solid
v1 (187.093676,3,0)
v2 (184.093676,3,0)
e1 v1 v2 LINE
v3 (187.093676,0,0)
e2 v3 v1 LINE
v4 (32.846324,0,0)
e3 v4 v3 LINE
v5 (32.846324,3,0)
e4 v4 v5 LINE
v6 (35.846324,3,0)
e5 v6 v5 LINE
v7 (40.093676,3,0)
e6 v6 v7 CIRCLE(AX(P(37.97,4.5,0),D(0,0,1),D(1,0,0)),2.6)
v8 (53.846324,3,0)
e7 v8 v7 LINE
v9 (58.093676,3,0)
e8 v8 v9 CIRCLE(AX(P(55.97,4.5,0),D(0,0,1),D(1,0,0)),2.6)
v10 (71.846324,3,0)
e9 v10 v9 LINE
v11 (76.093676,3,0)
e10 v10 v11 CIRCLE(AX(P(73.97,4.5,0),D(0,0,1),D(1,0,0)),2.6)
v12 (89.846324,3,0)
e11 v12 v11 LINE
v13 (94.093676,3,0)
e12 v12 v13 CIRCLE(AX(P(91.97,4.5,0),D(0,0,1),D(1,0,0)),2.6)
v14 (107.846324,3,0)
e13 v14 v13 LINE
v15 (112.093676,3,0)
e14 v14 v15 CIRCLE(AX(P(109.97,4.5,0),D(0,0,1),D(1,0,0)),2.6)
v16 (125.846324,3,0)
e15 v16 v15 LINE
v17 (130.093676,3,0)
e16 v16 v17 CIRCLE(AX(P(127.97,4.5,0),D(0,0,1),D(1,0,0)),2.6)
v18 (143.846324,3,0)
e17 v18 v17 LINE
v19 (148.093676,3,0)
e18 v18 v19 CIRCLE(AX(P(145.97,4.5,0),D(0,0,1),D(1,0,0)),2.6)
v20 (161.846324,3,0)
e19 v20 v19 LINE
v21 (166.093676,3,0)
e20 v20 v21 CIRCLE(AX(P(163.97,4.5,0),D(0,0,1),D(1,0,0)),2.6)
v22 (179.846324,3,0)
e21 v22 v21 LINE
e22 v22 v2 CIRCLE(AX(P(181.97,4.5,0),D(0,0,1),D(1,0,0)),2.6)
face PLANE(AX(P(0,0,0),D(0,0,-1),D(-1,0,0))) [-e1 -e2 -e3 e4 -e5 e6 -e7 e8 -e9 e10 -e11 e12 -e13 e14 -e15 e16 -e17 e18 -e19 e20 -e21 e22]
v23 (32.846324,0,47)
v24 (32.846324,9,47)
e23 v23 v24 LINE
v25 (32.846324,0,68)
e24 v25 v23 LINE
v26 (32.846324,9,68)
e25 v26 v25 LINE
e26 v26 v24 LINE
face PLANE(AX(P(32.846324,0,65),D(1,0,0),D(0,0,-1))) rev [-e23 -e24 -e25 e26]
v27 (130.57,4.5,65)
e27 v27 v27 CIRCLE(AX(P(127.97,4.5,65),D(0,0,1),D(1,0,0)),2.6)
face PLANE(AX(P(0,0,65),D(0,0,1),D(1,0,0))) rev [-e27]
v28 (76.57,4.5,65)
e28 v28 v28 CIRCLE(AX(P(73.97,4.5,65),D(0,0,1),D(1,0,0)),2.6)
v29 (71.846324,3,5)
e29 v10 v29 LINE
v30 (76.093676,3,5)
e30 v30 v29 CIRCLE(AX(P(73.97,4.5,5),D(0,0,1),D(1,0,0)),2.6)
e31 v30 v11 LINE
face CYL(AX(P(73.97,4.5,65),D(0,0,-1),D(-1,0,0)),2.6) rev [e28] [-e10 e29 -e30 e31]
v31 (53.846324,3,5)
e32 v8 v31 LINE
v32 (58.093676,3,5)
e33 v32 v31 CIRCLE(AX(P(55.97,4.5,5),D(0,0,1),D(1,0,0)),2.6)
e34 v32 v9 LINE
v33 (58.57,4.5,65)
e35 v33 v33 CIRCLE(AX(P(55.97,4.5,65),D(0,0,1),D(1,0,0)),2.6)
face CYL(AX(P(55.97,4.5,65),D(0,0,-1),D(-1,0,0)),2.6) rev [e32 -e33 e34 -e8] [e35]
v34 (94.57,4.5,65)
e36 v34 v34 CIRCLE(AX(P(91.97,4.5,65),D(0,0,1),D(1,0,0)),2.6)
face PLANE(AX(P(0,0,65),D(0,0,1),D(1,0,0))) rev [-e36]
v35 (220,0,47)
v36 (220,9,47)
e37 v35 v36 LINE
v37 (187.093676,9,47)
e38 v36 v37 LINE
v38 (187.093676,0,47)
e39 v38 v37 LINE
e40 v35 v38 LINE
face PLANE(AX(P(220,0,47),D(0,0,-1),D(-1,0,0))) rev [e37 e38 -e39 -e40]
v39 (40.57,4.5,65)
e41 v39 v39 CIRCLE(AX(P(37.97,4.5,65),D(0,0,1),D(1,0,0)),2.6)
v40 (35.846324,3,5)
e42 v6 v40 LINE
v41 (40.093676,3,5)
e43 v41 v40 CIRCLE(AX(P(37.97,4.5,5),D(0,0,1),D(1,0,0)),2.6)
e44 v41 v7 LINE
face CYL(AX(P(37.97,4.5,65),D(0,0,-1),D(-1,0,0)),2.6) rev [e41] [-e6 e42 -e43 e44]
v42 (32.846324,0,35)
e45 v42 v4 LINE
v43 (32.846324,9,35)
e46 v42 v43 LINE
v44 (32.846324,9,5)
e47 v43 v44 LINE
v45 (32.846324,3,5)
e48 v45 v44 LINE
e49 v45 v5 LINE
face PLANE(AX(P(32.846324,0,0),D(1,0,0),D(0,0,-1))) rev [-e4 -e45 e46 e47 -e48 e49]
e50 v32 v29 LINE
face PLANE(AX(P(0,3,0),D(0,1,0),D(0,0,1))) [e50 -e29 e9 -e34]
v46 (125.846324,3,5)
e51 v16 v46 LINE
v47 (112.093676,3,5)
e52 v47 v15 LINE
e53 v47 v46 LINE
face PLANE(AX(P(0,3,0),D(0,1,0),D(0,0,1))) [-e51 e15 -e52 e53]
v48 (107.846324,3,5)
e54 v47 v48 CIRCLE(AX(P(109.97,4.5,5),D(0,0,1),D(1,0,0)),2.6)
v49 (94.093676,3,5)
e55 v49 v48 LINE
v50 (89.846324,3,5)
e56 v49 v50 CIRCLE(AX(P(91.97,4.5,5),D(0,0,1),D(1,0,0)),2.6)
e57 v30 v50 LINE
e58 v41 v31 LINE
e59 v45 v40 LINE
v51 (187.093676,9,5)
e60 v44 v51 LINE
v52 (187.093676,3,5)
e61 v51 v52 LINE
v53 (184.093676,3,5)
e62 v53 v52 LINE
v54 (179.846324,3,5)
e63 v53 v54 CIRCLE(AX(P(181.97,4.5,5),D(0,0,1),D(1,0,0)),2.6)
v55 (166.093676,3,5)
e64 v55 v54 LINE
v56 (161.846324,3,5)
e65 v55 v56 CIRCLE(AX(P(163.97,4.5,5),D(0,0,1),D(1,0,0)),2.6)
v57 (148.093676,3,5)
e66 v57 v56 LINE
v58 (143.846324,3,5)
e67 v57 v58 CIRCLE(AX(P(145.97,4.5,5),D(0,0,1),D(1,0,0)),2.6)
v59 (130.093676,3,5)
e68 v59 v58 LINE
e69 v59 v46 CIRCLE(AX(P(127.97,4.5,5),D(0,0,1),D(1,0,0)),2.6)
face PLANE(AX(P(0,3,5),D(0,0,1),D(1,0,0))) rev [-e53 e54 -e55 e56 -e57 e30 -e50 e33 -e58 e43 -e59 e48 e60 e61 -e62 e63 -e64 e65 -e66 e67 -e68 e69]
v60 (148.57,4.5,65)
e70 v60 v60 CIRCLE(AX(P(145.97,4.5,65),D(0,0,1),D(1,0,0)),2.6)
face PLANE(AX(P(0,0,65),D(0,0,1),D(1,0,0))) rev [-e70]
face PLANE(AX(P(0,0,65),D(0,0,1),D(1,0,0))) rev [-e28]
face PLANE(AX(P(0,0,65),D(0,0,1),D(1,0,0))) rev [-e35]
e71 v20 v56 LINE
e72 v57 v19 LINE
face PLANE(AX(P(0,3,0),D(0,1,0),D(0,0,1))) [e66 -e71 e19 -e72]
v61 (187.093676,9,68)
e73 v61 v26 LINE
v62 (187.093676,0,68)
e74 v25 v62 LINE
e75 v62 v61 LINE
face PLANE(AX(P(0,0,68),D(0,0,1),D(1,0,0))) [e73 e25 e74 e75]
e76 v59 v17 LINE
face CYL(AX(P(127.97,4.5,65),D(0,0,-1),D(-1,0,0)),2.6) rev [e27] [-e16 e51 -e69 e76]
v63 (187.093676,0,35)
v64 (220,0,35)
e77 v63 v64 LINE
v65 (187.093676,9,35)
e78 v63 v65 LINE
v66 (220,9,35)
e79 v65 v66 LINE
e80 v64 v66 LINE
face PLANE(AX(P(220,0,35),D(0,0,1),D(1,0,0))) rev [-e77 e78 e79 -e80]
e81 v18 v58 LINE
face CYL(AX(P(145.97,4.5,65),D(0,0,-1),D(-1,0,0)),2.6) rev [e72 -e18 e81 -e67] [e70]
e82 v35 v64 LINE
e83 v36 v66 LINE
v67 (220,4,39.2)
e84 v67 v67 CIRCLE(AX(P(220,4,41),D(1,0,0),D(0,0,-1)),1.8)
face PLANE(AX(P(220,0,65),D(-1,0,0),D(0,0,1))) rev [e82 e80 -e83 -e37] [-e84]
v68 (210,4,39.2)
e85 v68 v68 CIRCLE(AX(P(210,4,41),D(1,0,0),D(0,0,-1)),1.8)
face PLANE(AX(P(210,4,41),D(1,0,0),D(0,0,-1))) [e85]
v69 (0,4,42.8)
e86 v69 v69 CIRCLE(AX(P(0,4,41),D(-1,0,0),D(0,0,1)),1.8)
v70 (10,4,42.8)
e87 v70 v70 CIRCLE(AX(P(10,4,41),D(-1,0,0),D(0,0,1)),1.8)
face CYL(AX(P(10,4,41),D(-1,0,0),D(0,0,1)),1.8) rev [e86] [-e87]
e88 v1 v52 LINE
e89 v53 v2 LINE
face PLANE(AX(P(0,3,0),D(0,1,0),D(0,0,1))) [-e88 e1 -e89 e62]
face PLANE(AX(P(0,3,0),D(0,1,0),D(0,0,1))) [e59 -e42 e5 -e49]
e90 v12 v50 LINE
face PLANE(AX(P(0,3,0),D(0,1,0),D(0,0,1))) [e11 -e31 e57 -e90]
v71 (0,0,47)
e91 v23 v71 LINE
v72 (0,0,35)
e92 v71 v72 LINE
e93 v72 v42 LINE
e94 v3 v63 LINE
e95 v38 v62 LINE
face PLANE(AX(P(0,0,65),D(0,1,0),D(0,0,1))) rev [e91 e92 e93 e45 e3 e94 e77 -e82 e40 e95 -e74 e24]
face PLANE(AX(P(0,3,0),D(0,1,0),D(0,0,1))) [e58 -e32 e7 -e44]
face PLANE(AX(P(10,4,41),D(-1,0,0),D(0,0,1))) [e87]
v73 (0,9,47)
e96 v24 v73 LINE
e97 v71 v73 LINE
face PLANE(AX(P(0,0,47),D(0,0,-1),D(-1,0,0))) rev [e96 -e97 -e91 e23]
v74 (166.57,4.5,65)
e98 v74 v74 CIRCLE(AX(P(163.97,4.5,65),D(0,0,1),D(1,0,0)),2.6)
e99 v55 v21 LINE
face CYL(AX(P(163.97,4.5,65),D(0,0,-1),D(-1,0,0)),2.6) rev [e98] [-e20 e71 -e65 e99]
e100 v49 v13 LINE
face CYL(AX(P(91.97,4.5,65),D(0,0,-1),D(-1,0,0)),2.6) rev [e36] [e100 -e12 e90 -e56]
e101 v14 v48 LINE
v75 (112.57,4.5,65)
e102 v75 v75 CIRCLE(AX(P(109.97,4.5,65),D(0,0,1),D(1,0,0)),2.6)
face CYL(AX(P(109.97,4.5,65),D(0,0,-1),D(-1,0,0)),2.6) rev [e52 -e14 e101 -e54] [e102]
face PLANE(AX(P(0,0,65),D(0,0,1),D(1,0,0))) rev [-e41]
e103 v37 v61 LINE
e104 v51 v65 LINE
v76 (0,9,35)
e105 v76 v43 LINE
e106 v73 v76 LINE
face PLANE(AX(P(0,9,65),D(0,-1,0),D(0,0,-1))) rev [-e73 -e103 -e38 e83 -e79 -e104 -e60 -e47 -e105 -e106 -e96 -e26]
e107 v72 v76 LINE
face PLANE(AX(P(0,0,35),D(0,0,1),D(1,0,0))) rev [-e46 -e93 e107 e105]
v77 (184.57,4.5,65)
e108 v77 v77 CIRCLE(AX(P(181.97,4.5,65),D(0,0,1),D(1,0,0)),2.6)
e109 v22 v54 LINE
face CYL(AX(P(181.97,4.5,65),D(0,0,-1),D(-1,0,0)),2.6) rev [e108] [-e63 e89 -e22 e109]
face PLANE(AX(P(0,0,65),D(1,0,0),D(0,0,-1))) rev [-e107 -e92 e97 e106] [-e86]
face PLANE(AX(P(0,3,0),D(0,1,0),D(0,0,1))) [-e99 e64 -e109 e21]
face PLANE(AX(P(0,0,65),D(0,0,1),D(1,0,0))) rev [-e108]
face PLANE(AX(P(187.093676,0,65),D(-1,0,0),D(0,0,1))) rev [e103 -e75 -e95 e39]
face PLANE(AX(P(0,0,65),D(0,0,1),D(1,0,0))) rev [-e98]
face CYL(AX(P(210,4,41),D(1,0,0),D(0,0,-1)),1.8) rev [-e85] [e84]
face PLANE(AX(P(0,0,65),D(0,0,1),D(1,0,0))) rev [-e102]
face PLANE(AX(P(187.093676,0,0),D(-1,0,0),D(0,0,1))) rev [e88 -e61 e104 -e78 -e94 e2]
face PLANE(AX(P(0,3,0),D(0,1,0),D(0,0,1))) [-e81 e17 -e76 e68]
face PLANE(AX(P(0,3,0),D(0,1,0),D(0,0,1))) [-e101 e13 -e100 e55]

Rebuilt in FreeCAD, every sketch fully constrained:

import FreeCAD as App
import Part
import Sketcher

V = App.Vector
Q = App.Units.Quantity


def add_polygon(sketch, points):
    """Adds a closed chain of lines whose ends are joined by coincident constraints."""
    first, n = sketch.GeometryCount, len(points)
    for a, b in zip(points, points[1:] + points[:1]):
        sketch.addGeometry(Part.LineSegment(App.Vector(*a, 0), App.Vector(*b, 0)), False)
    for i in range(n):
        sketch.addConstraint(Sketcher.Constraint("Coincident", first + i, 2, first + (i + 1) % n, 1))

doc = App.newDocument("Part")
body = doc.addObject("PartDesign::Body", "Body")

sketch1 = doc.addObject("Sketcher::SketchObject", "Sketch")
body.addObject(sketch1)
sketch1.AttachmentSupport = (doc.XY_Plane, [""])
sketch1.MapMode = "FlatFace"
add_polygon(sketch1, [(0, 9), (0, 0), (220, 0), (220, 9)])
sketch1.addGeometry(Part.Circle(V(38, 4.5, 0), V(0, 0, 1), 2.6), False)
sketch1.addGeometry(Part.Circle(V(56, 4.5, 0), V(0, 0, 1), 2.6), False)
sketch1.addGeometry(Part.Circle(V(74, 4.5, 0), V(0, 0, 1), 2.6), False)
sketch1.addGeometry(Part.Circle(V(92, 4.5, 0), V(0, 0, 1), 2.6), False)
sketch1.addGeometry(Part.Circle(V(110, 4.5, 0), V(0, 0, 1), 2.6), False)
sketch1.addGeometry(Part.Circle(V(128, 4.5, 0), V(0, 0, 1), 2.6), False)
sketch1.addGeometry(Part.Circle(V(146, 4.5, 0), V(0, 0, 1), 2.6), False)
sketch1.addGeometry(Part.Circle(V(164, 4.5, 0), V(0, 0, 1), 2.6), False)
sketch1.addGeometry(Part.Circle(V(182, 4.5, 0), V(0, 0, 1), 2.6), False)
sketch1.addConstraint(Sketcher.Constraint("Vertical", 0))
sketch1.addConstraint(Sketcher.Constraint("Horizontal", 1))
sketch1.addConstraint(Sketcher.Constraint("Vertical", 2))
sketch1.addConstraint(Sketcher.Constraint("Horizontal", 3))
sketch1.addConstraint(Sketcher.Constraint("Coincident", 0, 2, -1, 1))
sketch1.addConstraint(Sketcher.Constraint("Equal", 4, 5))
sketch1.addConstraint(Sketcher.Constraint("Equal", 5, 6))
sketch1.addConstraint(Sketcher.Constraint("Equal", 6, 7))
sketch1.addConstraint(Sketcher.Constraint("Equal", 7, 8))
sketch1.addConstraint(Sketcher.Constraint("Equal", 8, 9))
sketch1.addConstraint(Sketcher.Constraint("Equal", 9, 10))
sketch1.addConstraint(Sketcher.Constraint("Equal", 10, 11))
sketch1.addConstraint(Sketcher.Constraint("Equal", 11, 12))
sketch1.addConstraint(Sketcher.Constraint("Horizontal", 4, 3, 5, 3))
sketch1.addConstraint(Sketcher.Constraint("Horizontal", 5, 3, 6, 3))
sketch1.addConstraint(Sketcher.Constraint("Horizontal", 6, 3, 7, 3))
sketch1.addConstraint(Sketcher.Constraint("Horizontal", 7, 3, 8, 3))
sketch1.addConstraint(Sketcher.Constraint("Horizontal", 8, 3, 9, 3))
sketch1.addConstraint(Sketcher.Constraint("Horizontal", 9, 3, 10, 3))
sketch1.addConstraint(Sketcher.Constraint("Horizontal", 10, 3, 11, 3))
sketch1.addConstraint(Sketcher.Constraint("Horizontal", 11, 3, 12, 3))
sketch1.addConstraint(Sketcher.Constraint("Diameter", 4, Q("5.2 mm")))
sketch1.addConstraint(Sketcher.Constraint("DistanceX", 1, 1, 1, 2, Q("220 mm")))
sketch1.addConstraint(Sketcher.Constraint("DistanceY", 0, 2, 0, 1, Q("9 mm")))
sketch1.addConstraint(Sketcher.Constraint("DistanceX", 4, 3, 5, 3, Q("18 mm")))
sketch1.addConstraint(Sketcher.Constraint("DistanceX", 5, 3, 6, 3, Q("18 mm")))
sketch1.addConstraint(Sketcher.Constraint("DistanceX", 6, 3, 7, 3, Q("18 mm")))
sketch1.addConstraint(Sketcher.Constraint("DistanceX", 7, 3, 8, 3, Q("18 mm")))
sketch1.addConstraint(Sketcher.Constraint("DistanceX", 8, 3, 9, 3, Q("18 mm")))
sketch1.addConstraint(Sketcher.Constraint("DistanceX", 9, 3, 10, 3, Q("18 mm")))
sketch1.addConstraint(Sketcher.Constraint("DistanceX", 10, 3, 11, 3, Q("18 mm")))
sketch1.addConstraint(Sketcher.Constraint("DistanceX", 11, 3, 12, 3, Q("18 mm")))
sketch1.addConstraint(Sketcher.Constraint("DistanceY", -1, 1, 4, 3, Q("4.5 mm")))
sketch1.addConstraint(Sketcher.Constraint("DistanceX", -1, 1, 4, 3, Q("37.97 mm")))
pad1 = doc.addObject("PartDesign::Pad", "Pad")
body.addObject(pad1)
pad1.Profile = sketch1
pad1.Length = 65

sketch2 = doc.addObject("Sketcher::SketchObject", "Sketch001")
body.addObject(sketch2)
sketch2.AttachmentSupport = (doc.XZ_Plane, [""])
sketch2.MapMode = "FlatFace"
sketch2.AttachmentOffset = App.Placement(V(0, 0, -9), App.Rotation())
add_polygon(sketch2, [(0, 0), (0, 5), (220, 5), (220, 0)])
sketch2.addConstraint(Sketcher.Constraint("Vertical", 0))
sketch2.addConstraint(Sketcher.Constraint("Horizontal", 1))
sketch2.addConstraint(Sketcher.Constraint("Vertical", 2))
sketch2.addConstraint(Sketcher.Constraint("Horizontal", 3))
sketch2.addConstraint(Sketcher.Constraint("Coincident", 3, 2, -1, 1))
sketch2.addConstraint(Sketcher.Constraint("DistanceX", 1, 1, 1, 2, Q("220 mm")))
sketch2.addConstraint(Sketcher.Constraint("DistanceY", 0, 1, 0, 2, Q("5 mm")))
pocket1 = doc.addObject("PartDesign::Pocket", "Pocket")
body.addObject(pocket1)
pocket1.Profile = sketch2
pocket1.Length = 6
pocket1.Reversed = True

sketch3 = doc.addObject("Sketcher::SketchObject", "Sketch002")
body.addObject(sketch3)
sketch3.AttachmentSupport = (doc.XZ_Plane, [""])
sketch3.MapMode = "FlatFace"
sketch3.AttachmentOffset = App.Placement(V(0, 0, -9), App.Rotation())
add_polygon(sketch3, [(0, 0), (0, 35), (33, 35), (33, 0)])
add_polygon(sketch3, [(0, 47), (0, 65), (33, 65), (33, 47)])
add_polygon(sketch3, [(187, 0), (187, 35), (220, 35), (220, 0)])
add_polygon(sketch3, [(187, 47), (187, 65), (220, 65), (220, 47)])
sketch3.addConstraint(Sketcher.Constraint("Vertical", 0))
sketch3.addConstraint(Sketcher.Constraint("Horizontal", 1))
sketch3.addConstraint(Sketcher.Constraint("Vertical", 2))
sketch3.addConstraint(Sketcher.Constraint("Horizontal", 3))
sketch3.addConstraint(Sketcher.Constraint("Vertical", 4))
sketch3.addConstraint(Sketcher.Constraint("Horizontal", 5))
sketch3.addConstraint(Sketcher.Constraint("Vertical", 6))
sketch3.addConstraint(Sketcher.Constraint("Horizontal", 7))
sketch3.addConstraint(Sketcher.Constraint("Vertical", 8))
sketch3.addConstraint(Sketcher.Constraint("Horizontal", 9))
sketch3.addConstraint(Sketcher.Constraint("Vertical", 10))
sketch3.addConstraint(Sketcher.Constraint("Horizontal", 11))
sketch3.addConstraint(Sketcher.Constraint("Vertical", 12))
sketch3.addConstraint(Sketcher.Constraint("Horizontal", 13))
sketch3.addConstraint(Sketcher.Constraint("Vertical", 14))
sketch3.addConstraint(Sketcher.Constraint("Horizontal", 15))
sketch3.addConstraint(Sketcher.Constraint("Coincident", 3, 2, -1, 1))
sketch3.addConstraint(Sketcher.Constraint("PointOnObject", 4, 2, -2))
sketch3.addConstraint(Sketcher.Constraint("PointOnObject", 10, 2, -1))
sketch3.addConstraint(Sketcher.Constraint("Horizontal", 1, 2, 8, 2))
sketch3.addConstraint(Sketcher.Constraint("Horizontal", 5, 2, 12, 2))
sketch3.addConstraint(Sketcher.Constraint("Horizontal", 7, 2, 14, 2))
sketch3.addConstraint(Sketcher.Constraint("Vertical", 2, 2, 5, 2))
sketch3.addConstraint(Sketcher.Constraint("Vertical", 11, 2, 12, 2))
sketch3.addConstraint(Sketcher.Constraint("Vertical", 10, 2, 13, 2))
sketch3.addConstraint(Sketcher.Constraint("DistanceY", 0, 1, 0, 2, Q("35 mm")))
sketch3.addConstraint(Sketcher.Constraint("DistanceY", 4, 1, 4, 2, Q("18 mm")))
sketch3.addConstraint(Sketcher.Constraint("DistanceY", -1, 1, 4, 2, Q("65 mm")))
sketch3.addConstraint(Sketcher.Constraint("DistanceX", -1, 1, 9, 2, Q("220 mm")))
sketch3.addConstraint(Sketcher.Constraint("DistanceX", 1, 1, 1, 2, Q("32.846324 mm")))
sketch3.addConstraint(Sketcher.Constraint("DistanceX", 9, 1, 9, 2, Q("32.906324 mm")))
pocket2 = doc.addObject("PartDesign::Pocket", "Pocket001")
body.addObject(pocket2)
pocket2.Profile = sketch3
pocket2.Type = "ThroughAll"
pocket2.Reversed = True

sketch4 = doc.addObject("Sketcher::SketchObject", "Sketch003")
body.addObject(sketch4)
sketch4.AttachmentSupport = (doc.YZ_Plane, [""])
sketch4.MapMode = "FlatFace"
sketch4.addGeometry(Part.Circle(V(4, 41, 0), V(0, 0, 1), 1.8), False)
sketch4.addConstraint(Sketcher.Constraint("Diameter", 0, Q("3.6 mm")))
sketch4.addConstraint(Sketcher.Constraint("DistanceX", -1, 1, 0, 3, Q("4 mm")))
sketch4.addConstraint(Sketcher.Constraint("DistanceY", -1, 1, 0, 3, Q("41 mm")))
pocket3 = doc.addObject("PartDesign::Pocket", "Pocket002")
body.addObject(pocket3)
pocket3.Profile = sketch4
pocket3.Length = 10
pocket3.Reversed = True

sketch5 = doc.addObject("Sketcher::SketchObject", "Sketch004")
body.addObject(sketch5)
sketch5.AttachmentSupport = (doc.YZ_Plane, [""])
sketch5.MapMode = "FlatFace"
sketch5.AttachmentOffset = App.Placement(V(0, 0, 210), App.Rotation())
sketch5.addGeometry(Part.Circle(V(4, 41, 0), V(0, 0, 1), 1.8), False)
sketch5.addConstraint(Sketcher.Constraint("Diameter", 0, Q("3.6 mm")))
sketch5.addConstraint(Sketcher.Constraint("DistanceX", -1, 1, 0, 3, Q("4 mm")))
sketch5.addConstraint(Sketcher.Constraint("DistanceY", -1, 1, 0, 3, Q("41 mm")))
pocket4 = doc.addObject("PartDesign::Pocket", "Pocket003")
body.addObject(pocket4)
pocket4.Profile = sketch5
pocket4.Length = 10
pocket4.Reversed = True

sketch6 = doc.addObject("Sketcher::SketchObject", "Sketch005")
body.addObject(sketch6)
sketch6.AttachmentSupport = (doc.XY_Plane, [""])
sketch6.MapMode = "FlatFace"
sketch6.AttachmentOffset = App.Placement(V(0, 0, 65), App.Rotation())
add_polygon(sketch6, [(33, 9), (33, 0), (187, 0), (187, 9)])
sketch6.addConstraint(Sketcher.Constraint("Vertical", 0))
sketch6.addConstraint(Sketcher.Constraint("Horizontal", 1))
sketch6.addConstraint(Sketcher.Constraint("Vertical", 2))
sketch6.addConstraint(Sketcher.Constraint("Horizontal", 3))
sketch6.addConstraint(Sketcher.Constraint("PointOnObject", 0, 2, -1))
sketch6.addConstraint(Sketcher.Constraint("DistanceY", 0, 2, 0, 1, Q("9 mm")))
sketch6.addConstraint(Sketcher.Constraint("DistanceX", 1, 1, 1, 2, Q("154.247352 mm")))
sketch6.addConstraint(Sketcher.Constraint("DistanceX", -1, 1, 0, 2, Q("32.846324 mm")))
pad2 = doc.addObject("PartDesign::Pad", "Pad001")
body.addObject(pad2)
pad2.Profile = sketch6
pad2.Length = 3

doc.recompute()
